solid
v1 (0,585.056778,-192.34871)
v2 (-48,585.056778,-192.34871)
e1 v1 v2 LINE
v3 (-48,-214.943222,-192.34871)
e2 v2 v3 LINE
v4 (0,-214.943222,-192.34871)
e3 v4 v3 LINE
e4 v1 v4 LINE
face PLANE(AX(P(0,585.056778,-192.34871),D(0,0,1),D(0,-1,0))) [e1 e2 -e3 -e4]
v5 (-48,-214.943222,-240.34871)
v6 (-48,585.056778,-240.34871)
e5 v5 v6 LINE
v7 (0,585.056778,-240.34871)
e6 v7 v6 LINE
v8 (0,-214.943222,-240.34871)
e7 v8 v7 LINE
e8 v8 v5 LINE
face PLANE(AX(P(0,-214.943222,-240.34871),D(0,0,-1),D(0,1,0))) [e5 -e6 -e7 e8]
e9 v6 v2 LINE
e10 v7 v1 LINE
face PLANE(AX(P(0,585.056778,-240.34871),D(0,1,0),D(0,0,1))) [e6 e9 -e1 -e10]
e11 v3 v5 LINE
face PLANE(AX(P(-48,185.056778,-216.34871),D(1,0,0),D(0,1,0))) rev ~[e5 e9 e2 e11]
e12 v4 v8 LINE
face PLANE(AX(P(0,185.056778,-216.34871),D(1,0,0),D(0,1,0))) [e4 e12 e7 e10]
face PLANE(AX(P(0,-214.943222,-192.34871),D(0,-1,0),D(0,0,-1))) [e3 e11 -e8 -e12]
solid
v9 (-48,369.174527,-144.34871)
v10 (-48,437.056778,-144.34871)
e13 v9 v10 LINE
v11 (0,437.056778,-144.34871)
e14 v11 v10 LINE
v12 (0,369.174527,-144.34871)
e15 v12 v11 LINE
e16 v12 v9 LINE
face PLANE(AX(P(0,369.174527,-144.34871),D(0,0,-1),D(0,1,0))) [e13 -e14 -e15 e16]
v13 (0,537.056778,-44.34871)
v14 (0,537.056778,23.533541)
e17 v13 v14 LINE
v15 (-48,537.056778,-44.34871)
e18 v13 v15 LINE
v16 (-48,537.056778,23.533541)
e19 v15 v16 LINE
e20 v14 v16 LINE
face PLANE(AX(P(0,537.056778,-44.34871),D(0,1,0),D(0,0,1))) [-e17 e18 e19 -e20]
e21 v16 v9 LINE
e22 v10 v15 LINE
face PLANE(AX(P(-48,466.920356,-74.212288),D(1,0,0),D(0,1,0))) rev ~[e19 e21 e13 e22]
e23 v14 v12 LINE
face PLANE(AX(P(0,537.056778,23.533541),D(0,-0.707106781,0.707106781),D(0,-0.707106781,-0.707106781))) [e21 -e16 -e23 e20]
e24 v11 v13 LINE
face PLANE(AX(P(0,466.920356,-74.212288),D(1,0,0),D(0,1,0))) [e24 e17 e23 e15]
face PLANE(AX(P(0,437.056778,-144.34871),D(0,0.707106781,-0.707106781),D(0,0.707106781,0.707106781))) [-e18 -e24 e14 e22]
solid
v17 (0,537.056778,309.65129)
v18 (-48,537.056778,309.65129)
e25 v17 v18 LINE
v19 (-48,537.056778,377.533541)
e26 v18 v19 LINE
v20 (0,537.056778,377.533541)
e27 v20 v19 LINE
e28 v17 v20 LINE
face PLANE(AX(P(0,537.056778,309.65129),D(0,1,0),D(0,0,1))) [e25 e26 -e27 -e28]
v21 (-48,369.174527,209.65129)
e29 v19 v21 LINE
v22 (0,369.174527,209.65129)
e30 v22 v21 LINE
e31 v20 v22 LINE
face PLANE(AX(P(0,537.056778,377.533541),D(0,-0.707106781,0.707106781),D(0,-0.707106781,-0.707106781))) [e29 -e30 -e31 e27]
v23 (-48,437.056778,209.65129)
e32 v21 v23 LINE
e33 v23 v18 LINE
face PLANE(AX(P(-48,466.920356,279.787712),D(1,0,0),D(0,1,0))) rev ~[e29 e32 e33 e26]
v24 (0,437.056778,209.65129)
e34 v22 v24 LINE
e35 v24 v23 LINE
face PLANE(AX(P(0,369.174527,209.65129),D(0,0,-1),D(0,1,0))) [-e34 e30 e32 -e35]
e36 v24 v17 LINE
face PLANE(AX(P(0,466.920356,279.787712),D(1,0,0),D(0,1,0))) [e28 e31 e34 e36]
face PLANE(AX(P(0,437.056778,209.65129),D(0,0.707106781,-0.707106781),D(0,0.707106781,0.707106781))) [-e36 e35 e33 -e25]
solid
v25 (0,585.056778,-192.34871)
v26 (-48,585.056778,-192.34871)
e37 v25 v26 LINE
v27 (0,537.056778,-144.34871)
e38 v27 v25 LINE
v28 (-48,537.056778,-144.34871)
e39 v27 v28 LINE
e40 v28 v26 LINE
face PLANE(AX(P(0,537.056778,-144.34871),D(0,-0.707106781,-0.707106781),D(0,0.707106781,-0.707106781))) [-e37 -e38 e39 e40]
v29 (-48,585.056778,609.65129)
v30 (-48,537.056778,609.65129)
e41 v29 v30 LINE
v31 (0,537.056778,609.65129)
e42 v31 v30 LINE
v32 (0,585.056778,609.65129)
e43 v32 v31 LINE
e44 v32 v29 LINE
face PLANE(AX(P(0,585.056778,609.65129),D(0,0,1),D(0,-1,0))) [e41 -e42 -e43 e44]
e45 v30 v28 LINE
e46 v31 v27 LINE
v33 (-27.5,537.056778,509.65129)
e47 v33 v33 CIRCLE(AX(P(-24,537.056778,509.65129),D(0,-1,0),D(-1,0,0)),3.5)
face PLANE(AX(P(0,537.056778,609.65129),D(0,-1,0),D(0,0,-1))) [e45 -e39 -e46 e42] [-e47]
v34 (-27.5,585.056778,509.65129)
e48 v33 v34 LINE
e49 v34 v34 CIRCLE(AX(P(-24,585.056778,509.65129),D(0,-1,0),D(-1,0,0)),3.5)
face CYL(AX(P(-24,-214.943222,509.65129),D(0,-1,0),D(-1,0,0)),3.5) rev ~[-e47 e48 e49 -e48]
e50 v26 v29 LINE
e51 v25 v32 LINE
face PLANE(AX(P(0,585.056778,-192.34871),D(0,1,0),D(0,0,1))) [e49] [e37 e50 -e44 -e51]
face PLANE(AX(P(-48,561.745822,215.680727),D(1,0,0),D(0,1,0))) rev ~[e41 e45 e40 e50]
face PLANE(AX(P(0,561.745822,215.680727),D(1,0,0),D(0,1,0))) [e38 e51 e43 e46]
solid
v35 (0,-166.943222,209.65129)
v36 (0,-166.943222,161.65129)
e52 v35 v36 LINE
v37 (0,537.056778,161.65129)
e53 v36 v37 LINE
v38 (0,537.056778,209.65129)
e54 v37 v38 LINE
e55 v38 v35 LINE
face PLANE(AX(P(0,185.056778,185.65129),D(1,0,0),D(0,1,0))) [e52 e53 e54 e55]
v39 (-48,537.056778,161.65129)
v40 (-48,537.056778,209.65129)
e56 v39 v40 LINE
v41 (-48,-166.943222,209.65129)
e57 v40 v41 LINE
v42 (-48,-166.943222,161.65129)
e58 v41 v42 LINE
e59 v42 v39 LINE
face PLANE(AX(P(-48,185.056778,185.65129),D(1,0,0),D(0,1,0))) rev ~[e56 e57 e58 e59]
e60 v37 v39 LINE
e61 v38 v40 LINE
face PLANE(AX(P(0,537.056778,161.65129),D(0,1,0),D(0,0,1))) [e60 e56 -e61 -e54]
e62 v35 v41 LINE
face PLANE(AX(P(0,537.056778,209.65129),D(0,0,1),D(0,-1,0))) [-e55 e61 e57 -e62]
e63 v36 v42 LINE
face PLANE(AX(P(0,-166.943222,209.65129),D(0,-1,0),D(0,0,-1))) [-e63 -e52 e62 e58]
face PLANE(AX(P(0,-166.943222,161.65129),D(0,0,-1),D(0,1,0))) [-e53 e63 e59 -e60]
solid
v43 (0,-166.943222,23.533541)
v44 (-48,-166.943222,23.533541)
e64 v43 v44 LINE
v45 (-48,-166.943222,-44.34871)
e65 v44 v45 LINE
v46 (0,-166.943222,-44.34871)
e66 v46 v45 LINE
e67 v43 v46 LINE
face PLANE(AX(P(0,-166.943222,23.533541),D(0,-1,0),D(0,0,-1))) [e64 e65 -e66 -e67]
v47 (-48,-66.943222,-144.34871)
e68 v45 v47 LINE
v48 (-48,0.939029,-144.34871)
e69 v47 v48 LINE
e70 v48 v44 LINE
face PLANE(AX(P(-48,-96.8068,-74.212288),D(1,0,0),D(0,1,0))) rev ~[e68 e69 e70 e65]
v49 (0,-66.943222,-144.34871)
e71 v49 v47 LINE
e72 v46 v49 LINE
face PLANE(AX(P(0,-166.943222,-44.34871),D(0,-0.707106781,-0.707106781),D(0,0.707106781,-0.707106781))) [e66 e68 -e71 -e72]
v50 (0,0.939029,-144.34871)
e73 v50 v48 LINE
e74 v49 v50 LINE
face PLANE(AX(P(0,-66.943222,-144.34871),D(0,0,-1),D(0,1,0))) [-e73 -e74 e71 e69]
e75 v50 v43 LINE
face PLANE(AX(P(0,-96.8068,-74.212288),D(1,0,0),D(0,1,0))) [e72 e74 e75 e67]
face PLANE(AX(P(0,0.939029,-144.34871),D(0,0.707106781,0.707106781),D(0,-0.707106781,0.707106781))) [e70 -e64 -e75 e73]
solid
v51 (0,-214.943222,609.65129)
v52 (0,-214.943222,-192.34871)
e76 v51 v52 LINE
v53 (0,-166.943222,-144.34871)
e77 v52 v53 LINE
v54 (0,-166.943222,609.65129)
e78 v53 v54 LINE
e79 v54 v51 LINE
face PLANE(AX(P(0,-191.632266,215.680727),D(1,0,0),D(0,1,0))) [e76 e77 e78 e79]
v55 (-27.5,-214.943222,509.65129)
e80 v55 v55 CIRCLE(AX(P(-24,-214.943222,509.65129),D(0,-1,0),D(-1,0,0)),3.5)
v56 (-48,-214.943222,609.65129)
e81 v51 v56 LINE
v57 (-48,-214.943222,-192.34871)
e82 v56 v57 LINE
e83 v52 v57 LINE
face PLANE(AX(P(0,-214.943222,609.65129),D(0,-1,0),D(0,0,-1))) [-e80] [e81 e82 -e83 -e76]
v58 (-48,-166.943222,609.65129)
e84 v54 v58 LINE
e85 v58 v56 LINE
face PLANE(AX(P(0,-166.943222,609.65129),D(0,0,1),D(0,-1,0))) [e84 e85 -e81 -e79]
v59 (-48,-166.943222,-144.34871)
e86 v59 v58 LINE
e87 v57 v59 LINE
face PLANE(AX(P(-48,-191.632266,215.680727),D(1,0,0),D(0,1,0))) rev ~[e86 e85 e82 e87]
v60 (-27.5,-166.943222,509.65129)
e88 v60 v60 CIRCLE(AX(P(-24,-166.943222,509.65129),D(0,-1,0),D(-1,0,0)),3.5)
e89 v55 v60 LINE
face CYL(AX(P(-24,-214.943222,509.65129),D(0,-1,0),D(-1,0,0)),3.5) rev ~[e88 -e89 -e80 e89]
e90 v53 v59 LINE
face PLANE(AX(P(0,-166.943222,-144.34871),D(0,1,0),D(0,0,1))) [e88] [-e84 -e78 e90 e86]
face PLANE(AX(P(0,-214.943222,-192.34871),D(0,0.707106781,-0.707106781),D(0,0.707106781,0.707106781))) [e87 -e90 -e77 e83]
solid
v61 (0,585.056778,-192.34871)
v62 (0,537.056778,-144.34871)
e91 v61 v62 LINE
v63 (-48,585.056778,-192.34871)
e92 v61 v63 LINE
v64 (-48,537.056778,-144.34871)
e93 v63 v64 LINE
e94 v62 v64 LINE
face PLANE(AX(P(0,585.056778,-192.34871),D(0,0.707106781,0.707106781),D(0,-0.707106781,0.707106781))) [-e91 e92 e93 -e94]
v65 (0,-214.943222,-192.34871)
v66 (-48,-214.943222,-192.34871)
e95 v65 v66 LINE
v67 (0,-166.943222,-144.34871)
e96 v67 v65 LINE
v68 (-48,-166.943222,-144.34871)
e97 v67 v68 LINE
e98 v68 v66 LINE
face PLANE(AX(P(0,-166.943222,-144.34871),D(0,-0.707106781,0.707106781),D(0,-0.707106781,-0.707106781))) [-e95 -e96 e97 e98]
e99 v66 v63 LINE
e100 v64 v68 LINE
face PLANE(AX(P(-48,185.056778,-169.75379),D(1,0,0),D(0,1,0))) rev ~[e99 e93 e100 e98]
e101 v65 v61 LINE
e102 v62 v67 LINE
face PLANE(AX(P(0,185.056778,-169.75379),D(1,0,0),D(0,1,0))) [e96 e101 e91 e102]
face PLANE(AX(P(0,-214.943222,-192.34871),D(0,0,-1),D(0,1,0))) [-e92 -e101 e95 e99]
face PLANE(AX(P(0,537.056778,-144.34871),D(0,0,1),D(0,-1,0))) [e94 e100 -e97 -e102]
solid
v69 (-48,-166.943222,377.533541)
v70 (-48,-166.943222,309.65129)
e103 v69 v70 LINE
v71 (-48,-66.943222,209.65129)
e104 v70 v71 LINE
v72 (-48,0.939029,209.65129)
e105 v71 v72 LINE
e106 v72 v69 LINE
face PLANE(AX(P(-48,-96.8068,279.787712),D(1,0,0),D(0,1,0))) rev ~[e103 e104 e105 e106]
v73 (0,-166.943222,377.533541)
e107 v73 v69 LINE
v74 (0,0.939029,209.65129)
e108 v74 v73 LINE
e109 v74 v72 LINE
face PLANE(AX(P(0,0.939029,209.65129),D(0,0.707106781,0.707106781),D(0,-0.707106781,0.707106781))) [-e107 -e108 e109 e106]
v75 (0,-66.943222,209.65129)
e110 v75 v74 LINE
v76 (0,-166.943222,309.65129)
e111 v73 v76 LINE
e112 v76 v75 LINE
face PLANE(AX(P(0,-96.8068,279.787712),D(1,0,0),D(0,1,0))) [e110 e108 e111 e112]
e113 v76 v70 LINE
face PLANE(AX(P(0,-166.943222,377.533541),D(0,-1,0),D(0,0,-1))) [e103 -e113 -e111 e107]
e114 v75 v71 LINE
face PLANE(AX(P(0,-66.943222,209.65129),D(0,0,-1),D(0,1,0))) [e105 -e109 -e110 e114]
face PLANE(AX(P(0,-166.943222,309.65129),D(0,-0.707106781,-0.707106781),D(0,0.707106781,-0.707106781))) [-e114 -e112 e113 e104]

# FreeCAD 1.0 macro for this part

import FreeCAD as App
import Part
import Sketcher


def add_polygon(sketch, points):
    """Adds a closed chain of lines whose ends are joined by coincident constraints."""
    first, n = sketch.GeometryCount, len(points)
    for a, b in zip(points, points[1:] + points[:1]):
        sketch.addGeometry(Part.LineSegment(App.Vector(*a, 0), App.Vector(*b, 0)), False)
    for i in range(n):
        sketch.addConstraint(Sketcher.Constraint("Coincident", first + i, 2, first + (i + 1) % n, 1))

doc = App.newDocument("Part")
body = doc.addObject("PartDesign::Body", "Body")

sketch1 = doc.addObject("Sketcher::SketchObject", "Sketch")
body.addObject(sketch1)
sketch1.AttachmentSupport = (doc.YZ_Plane, [""])
sketch1.MapMode = "FlatFace"
add_polygon(sketch1, [(537.056778, -144.34871), (585.056778, -192.34871), (585.056778, 609.65129), (537.056778, 609.65129)])
sketch1.addConstraint([
    Sketcher.Constraint("Vertical", 1),
    Sketcher.Constraint("Horizontal", 2),
    Sketcher.Constraint("Vertical", 3),
    Sketcher.Constraint("DistanceX", 2, 2, 2, 1, 48.0),
    Sketcher.Constraint("DistanceY", 1, 1, 1, 2, 802.0),
    Sketcher.Constraint("DistanceY", 3, 2, 3, 1, 754.0),
    Sketcher.Constraint("DistanceX", -1, 1, 0, 2, 585.056778),
    Sketcher.Constraint("DistanceY", 0, 2, -1, 1, 192.34871),
])
pad1 = doc.addObject("PartDesign::Pad", "Pad")
body.addObject(pad1)
pad1.Profile = sketch1
pad1.Length = 48
pad1.Reversed = True
body2 = doc.addObject("PartDesign::Body", "Body001")

sketch2 = doc.addObject("Sketcher::SketchObject", "Sketch001")
body2.addObject(sketch2)
sketch2.AttachmentSupport = (doc.getObject("YZ_Plane001"), [""])
sketch2.MapMode = "FlatFace"
add_polygon(sketch2, [(-166.943222, 609.65129), (-214.943222, 609.65129), (-214.943222, -192.34871), (-166.943222, -144.34871)])
sketch2.addConstraint([
    Sketcher.Constraint("Horizontal", 0),
    Sketcher.Constraint("Vertical", 1),
    Sketcher.Constraint("Vertical", 3),
    Sketcher.Constraint("DistanceX", 0, 2, 0, 1, 48.0),
    Sketcher.Constraint("DistanceY", 1, 2, 1, 1, 802.0),
    Sketcher.Constraint("DistanceY", 3, 1, 3, 2, 754.0),
    Sketcher.Constraint("DistanceX", 0, 2, -1, 1, 214.943222),
    Sketcher.Constraint("DistanceY", -1, 1, 0, 2, 609.65129),
])
pad2 = doc.addObject("PartDesign::Pad", "Pad001")
body2.addObject(pad2)
pad2.Profile = sketch2
pad2.Length = 48
pad2.Reversed = True
body3 = doc.addObject("PartDesign::Body", "Body002")

sketch3 = doc.addObject("Sketcher::SketchObject", "Sketch002")
body3.addObject(sketch3)
sketch3.AttachmentSupport = (doc.getObject("YZ_Plane002"), [""])
sketch3.MapMode = "FlatFace"
add_polygon(sketch3, [(-166.943222, 23.533541), (-166.943222, -44.34871), (-66.943222, -144.34871), (0.939029, -144.34871)])
sketch3.addConstraint([
    Sketcher.Constraint("Vertical", 0),
    Sketcher.Constraint("Horizontal", 2),
    Sketcher.Constraint("Parallel", 1, 3),
    Sketcher.Constraint("Equal", 2, 0),
    Sketcher.Constraint("DistanceX", 0, 2, 1, 2, 100.0),
    Sketcher.Constraint("DistanceX", 2, 1, 2, 2, 67.882251),
    Sketcher.Constraint("DistanceX", 0, 2, -1, 1, 166.943222),
    Sketcher.Constraint("DistanceY", 0, 2, -1, 1, 44.34871),
])
pad3 = doc.addObject("PartDesign::Pad", "Pad002")
body3.addObject(pad3)
pad3.Profile = sketch3
pad3.Length = 48
pad3.Reversed = True
body4 = doc.addObject("PartDesign::Body", "Body003")

sketch4 = doc.addObject("Sketcher::SketchObject", "Sketch003")
body4.addObject(sketch4)
sketch4.AttachmentSupport = (doc.getObject("YZ_Plane003"), [""])
sketch4.MapMode = "FlatFace"
add_polygon(sketch4, [(0.939029, 209.65129), (-166.943222, 377.533541), (-166.943222, 309.65129), (-66.943222, 209.65129)])
sketch4.addConstraint([
    Sketcher.Constraint("Vertical", 1),
    Sketcher.Constraint("Horizontal", 3),
    Sketcher.Constraint("Parallel", 0, 2),
    Sketcher.Constraint("Equal", 3, 1),
    Sketcher.Constraint("DistanceX", 1, 2, 2, 2, 100.0),
    Sketcher.Constraint("DistanceX", 3, 1, 3, 2, 67.882251),
    Sketcher.Constraint("DistanceX", 0, 2, -1, 1, 166.943222),
    Sketcher.Constraint("DistanceY", -1, 1, 0, 2, 377.533541),
])
pad4 = doc.addObject("PartDesign::Pad", "Pad003")
body4.addObject(pad4)
pad4.Profile = sketch4
pad4.Length = 48
pad4.Reversed = True
body5 = doc.addObject("PartDesign::Body", "Body004")

sketch5 = doc.addObject("Sketcher::SketchObject", "Sketch004")
body5.addObject(sketch5)
sketch5.AttachmentSupport = (doc.getObject("YZ_Plane004"), [""])
sketch5.MapMode = "FlatFace"
add_polygon(sketch5, [(537.056778, 377.533541), (369.174527, 209.65129), (437.056778, 209.65129), (537.056778, 309.65129)])
sketch5.addConstraint([
    Sketcher.Constraint("Horizontal", 1),
    Sketcher.Constraint("Vertical", 3),
    Sketcher.Constraint("Parallel", 0, 2),
    Sketcher.Constraint("Equal", 1, 3),
    Sketcher.Constraint("DistanceX", 1, 2, 2, 2, 100.0),
    Sketcher.Constraint("DistanceX", 1, 1, 1, 2, 67.882251),
    Sketcher.Constraint("DistanceY", -1, 1, 0, 2, 209.65129),
    Sketcher.Constraint("DistanceX", -1, 1, 1, 2, 437.056778),
])
pad5 = doc.addObject("PartDesign::Pad", "Pad004")
body5.addObject(pad5)
pad5.Profile = sketch5
pad5.Length = 48
pad5.Reversed = True
body6 = doc.addObject("PartDesign::Body", "Body005")

sketch6 = doc.addObject("Sketcher::SketchObject", "Sketch005")
body6.addObject(sketch6)
sketch6.AttachmentSupport = (doc.getObject("YZ_Plane005"), [""])
sketch6.MapMode = "FlatFace"
add_polygon(sketch6, [(537.056778, 23.533541), (369.174527, -144.34871), (437.056778, -144.34871), (537.056778, -44.34871)])
sketch6.addConstraint([
    Sketcher.Constraint("Horizontal", 1),
    Sketcher.Constraint("Vertical", 3),
    Sketcher.Constraint("Parallel", 0, 2),
    Sketcher.Constraint("Equal", 1, 3),
    Sketcher.Constraint("DistanceX", 1, 2, 2, 2, 100.0),
    Sketcher.Constraint("DistanceX", 1, 1, 1, 2, 67.882251),
    Sketcher.Constraint("DistanceY", 0, 2, -1, 1, 144.34871),
    Sketcher.Constraint("DistanceX", -1, 1, 1, 2, 437.056778),
])
pad6 = doc.addObject("PartDesign::Pad", "Pad005")
body6.addObject(pad6)
pad6.Profile = sketch6
pad6.Length = 48
pad6.Reversed = True
body7 = doc.addObject("PartDesign::Body", "Body006")

sketch7 = doc.addObject("Sketcher::SketchObject", "Sketch006")
body7.addObject(sketch7)
sketch7.AttachmentSupport = (doc.getObject("YZ_Plane006"), [""])
sketch7.MapMode = "FlatFace"
add_polygon(sketch7, [(-166.943222, 209.65129), (-166.943222, 161.65129), (537.056778, 161.65129), (537.056778, 209.65129)])
sketch7.addConstraint([
    Sketcher.Constraint("Vertical", 0),
    Sketcher.Constraint("Horizontal", 1),
    Sketcher.Constraint("Vertical", 2),
    Sketcher.Constraint("Horizontal", 3),
    Sketcher.Constraint("DistanceX", 1, 1, 1, 2, 704.0),
    Sketcher.Constraint("DistanceY", 0, 2, 0, 1, 48.0),
    Sketcher.Constraint("DistanceX", 0, 2, -1, 1, 166.943222),
    Sketcher.Constraint("DistanceY", -1, 1, 0, 2, 161.65129),
])
pad7 = doc.addObject("PartDesign::Pad", "Pad006")
body7.addObject(pad7)
pad7.Profile = sketch7
pad7.Length = 48
pad7.Reversed = True
body8 = doc.addObject("PartDesign::Body", "Body007")

sketch8 = doc.addObject("Sketcher::SketchObject", "Sketch007")
body8.addObject(sketch8)
sketch8.AttachmentSupport = (doc.getObject("XZ_Plane007"), [""])
sketch8.MapMode = "FlatFace"
sketch8.AttachmentOffset = App.Placement(App.Vector(0, 0, 214.943222), App.Rotation())
sketch8.addGeometry(Part.Circle(App.Vector(-24, 509.65129, 0), App.Vector(0, 0, 1), 3.5), False)
sketch8.addConstraint([
    Sketcher.Constraint("Diameter", 0, 7.0),
    Sketcher.Constraint("DistanceX", 0, 3, -1, 1, 24.0),
    Sketcher.Constraint("DistanceY", -1, 1, 0, 3, 509.65129),
])
pad8 = doc.addObject("PartDesign::Pad", "Pad007")
body8.addObject(pad8)
pad8.Profile = sketch8
pad8.Length = 800.001
pad8.Reversed = True
doc.recompute()

body9 = doc.addObject("PartDesign::Body", "Body008")
body9.BaseFeature = body8
boolean = doc.addObject("PartDesign::Boolean", "Boolean")
body.addObject(boolean)
boolean.Type = "Cut"
boolean.addObjects([body9])
doc.recompute()

boolean2 = doc.addObject("PartDesign::Boolean", "Boolean001")
body2.addObject(boolean2)
boolean2.Type = "Cut"
boolean2.addObjects([body8])
body10 = doc.addObject("PartDesign::Body", "Body009")

sketch9 = doc.addObject("Sketcher::SketchObject", "Sketch008")
body10.addObject(sketch9)
sketch9.AttachmentSupport = (doc.getObject("YZ_Plane009"), [""])
sketch9.MapMode = "FlatFace"
add_polygon(sketch9, [(-166.943222, -144.34871), (-214.943222, -192.34871), (585.056778, -192.34871), (537.056778, -144.34871)])
sketch9.addConstraint([
    Sketcher.Constraint("Horizontal", 1),
    Sketcher.Constraint("Horizontal", 3),
    Sketcher.Constraint("Perpendicular", 0, 2),
    Sketcher.Constraint("Equal", 0, 2),
    Sketcher.Constraint("DistanceX", 1, 1, 1, 2, 800.0),
    Sketcher.Constraint("DistanceX", 3, 2, 3, 1, 704.0),
    Sketcher.Constraint("DistanceX", 0, 2, -1, 1, 214.943222),
    Sketcher.Constraint("DistanceY", 0, 2, -1, 1, 192.34871),
])
pad9 = doc.addObject("PartDesign::Pad", "Pad008")
body10.addObject(pad9)
pad9.Profile = sketch9
pad9.Length = 48
pad9.Reversed = True
body11 = doc.addObject("PartDesign::Body", "Body010")

sketch10 = doc.addObject("Sketcher::SketchObject", "Sketch009")
body11.addObject(sketch10)
sketch10.AttachmentSupport = (doc.getObject("YZ_Plane010"), [""])
sketch10.MapMode = "FlatFace"
add_polygon(sketch10, [(-214.943222, -192.34871), (-214.943222, -240.34871), (585.056778, -240.34871), (585.056778, -192.34871)])
sketch10.addConstraint([
    Sketcher.Constraint("Vertical", 0),
    Sketcher.Constraint("Horizontal", 1),
    Sketcher.Constraint("Vertical", 2),
    Sketcher.Constraint("Horizontal", 3),
    Sketcher.Constraint("DistanceX", 1, 1, 1, 2, 800.0),
    Sketcher.Constraint("DistanceY", 0, 2, 0, 1, 48.0),
    Sketcher.Constraint("DistanceX", 0, 2, -1, 1, 214.943222),
    Sketcher.Constraint("DistanceY", 0, 2, -1, 1, 240.34871),
])
pad10 = doc.addObject("PartDesign::Pad", "Pad009")
body11.addObject(pad10)
pad10.Profile = sketch10
pad10.Length = 48
pad10.Reversed = True

doc.recompute()
